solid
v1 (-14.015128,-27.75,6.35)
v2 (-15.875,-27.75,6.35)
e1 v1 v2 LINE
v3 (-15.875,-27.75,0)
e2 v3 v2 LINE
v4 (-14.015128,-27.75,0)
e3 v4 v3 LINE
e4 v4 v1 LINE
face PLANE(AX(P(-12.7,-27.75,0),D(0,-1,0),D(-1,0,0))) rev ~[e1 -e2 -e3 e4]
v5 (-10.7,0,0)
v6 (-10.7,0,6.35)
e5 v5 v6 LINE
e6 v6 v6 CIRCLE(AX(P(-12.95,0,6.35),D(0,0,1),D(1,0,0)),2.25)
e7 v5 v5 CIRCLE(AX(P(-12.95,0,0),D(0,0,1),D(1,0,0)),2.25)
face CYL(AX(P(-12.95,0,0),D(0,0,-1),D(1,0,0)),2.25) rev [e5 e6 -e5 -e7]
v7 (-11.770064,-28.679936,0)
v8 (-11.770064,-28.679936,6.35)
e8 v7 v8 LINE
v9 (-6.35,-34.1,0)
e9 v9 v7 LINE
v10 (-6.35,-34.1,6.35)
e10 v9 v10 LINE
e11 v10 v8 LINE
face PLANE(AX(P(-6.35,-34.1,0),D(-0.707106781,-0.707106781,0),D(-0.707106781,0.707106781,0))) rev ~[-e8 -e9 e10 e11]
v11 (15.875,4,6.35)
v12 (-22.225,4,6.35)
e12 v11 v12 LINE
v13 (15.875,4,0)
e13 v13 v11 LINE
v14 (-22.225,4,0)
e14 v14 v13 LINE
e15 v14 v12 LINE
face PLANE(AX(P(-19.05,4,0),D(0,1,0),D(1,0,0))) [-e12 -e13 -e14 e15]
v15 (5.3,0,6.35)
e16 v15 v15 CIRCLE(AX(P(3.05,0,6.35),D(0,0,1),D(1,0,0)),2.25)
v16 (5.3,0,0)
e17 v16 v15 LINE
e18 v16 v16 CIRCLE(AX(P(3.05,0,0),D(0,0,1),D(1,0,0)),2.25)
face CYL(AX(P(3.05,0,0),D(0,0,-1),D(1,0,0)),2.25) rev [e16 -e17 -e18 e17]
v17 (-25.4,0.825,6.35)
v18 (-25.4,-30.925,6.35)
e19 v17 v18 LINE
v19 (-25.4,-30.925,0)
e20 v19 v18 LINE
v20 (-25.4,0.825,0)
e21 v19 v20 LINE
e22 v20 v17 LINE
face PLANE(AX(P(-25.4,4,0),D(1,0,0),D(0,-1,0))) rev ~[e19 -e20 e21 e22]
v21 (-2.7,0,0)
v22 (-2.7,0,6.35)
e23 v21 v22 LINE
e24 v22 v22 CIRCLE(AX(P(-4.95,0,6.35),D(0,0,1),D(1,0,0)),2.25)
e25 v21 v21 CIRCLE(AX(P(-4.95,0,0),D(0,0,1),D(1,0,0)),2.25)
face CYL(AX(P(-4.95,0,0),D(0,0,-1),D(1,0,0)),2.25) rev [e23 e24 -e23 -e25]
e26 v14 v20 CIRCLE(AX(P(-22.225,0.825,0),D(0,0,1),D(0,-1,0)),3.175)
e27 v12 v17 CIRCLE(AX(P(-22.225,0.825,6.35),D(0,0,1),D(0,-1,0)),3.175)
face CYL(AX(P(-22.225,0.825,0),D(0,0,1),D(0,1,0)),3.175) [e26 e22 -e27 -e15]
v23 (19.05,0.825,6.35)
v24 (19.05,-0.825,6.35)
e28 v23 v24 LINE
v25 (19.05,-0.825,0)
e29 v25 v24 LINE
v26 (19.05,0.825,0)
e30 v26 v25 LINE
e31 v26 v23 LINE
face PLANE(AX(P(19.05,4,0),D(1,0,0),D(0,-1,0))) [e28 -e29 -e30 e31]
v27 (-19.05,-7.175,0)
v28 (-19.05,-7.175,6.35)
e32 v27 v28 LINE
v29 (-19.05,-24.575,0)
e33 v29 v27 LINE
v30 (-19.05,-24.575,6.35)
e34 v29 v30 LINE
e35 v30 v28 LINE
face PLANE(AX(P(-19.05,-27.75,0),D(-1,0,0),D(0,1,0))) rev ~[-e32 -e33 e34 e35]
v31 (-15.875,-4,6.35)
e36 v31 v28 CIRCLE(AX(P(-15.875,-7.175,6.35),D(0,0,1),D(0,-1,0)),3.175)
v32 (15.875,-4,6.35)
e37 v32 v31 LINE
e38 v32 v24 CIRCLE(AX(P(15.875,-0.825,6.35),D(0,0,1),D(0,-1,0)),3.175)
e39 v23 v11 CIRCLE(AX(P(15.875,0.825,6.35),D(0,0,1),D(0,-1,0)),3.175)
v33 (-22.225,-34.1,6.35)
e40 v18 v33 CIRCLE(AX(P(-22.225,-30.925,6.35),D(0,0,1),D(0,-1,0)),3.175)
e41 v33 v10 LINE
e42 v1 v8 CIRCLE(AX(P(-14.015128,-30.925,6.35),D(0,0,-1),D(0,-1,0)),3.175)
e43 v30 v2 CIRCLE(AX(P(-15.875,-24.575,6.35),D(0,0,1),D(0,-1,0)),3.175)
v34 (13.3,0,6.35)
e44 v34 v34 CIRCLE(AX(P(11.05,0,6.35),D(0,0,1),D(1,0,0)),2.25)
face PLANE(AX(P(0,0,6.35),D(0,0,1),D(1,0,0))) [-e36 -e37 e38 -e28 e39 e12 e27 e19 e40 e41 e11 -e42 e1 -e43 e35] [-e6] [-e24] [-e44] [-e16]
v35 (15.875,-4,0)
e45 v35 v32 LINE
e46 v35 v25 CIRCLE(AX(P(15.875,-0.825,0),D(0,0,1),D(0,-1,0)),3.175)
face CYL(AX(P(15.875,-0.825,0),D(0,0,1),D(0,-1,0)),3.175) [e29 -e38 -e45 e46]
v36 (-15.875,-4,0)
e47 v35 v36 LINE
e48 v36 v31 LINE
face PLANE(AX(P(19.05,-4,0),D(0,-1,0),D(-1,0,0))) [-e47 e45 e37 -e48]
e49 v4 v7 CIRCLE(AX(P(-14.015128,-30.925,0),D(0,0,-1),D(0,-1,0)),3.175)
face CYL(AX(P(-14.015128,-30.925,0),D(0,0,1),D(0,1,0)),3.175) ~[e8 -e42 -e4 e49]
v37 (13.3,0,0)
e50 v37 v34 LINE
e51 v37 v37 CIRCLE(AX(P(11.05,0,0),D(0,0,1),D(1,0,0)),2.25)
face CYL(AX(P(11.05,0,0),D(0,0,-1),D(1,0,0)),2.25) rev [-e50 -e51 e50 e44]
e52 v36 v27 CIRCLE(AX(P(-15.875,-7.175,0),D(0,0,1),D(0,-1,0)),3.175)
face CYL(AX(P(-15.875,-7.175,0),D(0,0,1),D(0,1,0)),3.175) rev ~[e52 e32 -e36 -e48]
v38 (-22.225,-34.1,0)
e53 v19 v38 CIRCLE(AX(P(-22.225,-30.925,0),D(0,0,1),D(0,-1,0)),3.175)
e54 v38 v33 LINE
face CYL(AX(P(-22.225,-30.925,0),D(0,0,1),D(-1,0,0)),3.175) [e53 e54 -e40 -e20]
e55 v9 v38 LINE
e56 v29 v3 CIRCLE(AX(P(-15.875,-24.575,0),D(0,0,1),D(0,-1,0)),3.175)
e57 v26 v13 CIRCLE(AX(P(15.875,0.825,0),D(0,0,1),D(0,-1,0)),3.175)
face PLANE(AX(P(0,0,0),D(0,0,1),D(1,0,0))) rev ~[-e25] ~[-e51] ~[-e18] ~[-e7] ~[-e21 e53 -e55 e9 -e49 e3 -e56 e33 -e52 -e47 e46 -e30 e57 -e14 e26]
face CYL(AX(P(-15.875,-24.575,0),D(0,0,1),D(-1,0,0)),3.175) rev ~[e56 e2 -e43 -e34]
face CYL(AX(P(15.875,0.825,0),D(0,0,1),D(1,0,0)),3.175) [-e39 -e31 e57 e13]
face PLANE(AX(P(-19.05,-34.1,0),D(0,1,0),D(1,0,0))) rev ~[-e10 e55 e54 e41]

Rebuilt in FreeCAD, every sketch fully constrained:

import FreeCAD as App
import Part
import Sketcher
Q = App.Units.Quantity


def edges_at(feature, points):
    """Names of the edges that pass closest to the given points."""
    edges = feature.Shape.Edges
    near = lambda p: min(range(len(edges)), key=lambda i: edges[i].distToShape(Part.Vertex(*p))[0])
    return sorted({f"Edge{near(p) + 1}" for p in points})


def add_polygon(sketch, points):
    """Adds a closed chain of lines whose ends are joined by coincident constraints."""
    first, n = sketch.GeometryCount, len(points)
    for a, b in zip(points, points[1:] + points[:1]):
        sketch.addGeometry(Part.LineSegment(App.Vector(*a, 0), App.Vector(*b, 0)), False)
    for i in range(n):
        sketch.addConstraint(Sketcher.Constraint("Coincident", first + i, 2, first + (i + 1) % n, 1))

doc = App.newDocument("Part")
body = doc.addObject("PartDesign::Body", "Body")

# Sketch on XY plane
sketch1 = body.newObject("Sketcher::SketchObject", "Sketch")
sketch1.AttachmentSupport = (doc.getObject("XY_Plane"), [""])
sketch1.MapMode = "FlatFace"
add_polygon(sketch1, [(-19.05, -4), (19.05, -4), (19.05, 4), (-25.4, 4), (-25.4, -34.1), (-6.35, -34.1), (-12.7, -27.75), (-19.05, -27.75)])  # lines 0-7
sketch1.addGeometry(Part.Circle(App.Vector(-12.95, 0, 0), App.Vector(0, 0, 1), 2.25), False)  # 8
sketch1.addGeometry(Part.Circle(App.Vector(-4.95, 0, 0), App.Vector(0, 0, 1), 2.25), False)  # 9
sketch1.addGeometry(Part.Circle(App.Vector(3.05, 0, 0), App.Vector(0, 0, 1), 2.25), False)  # 10
sketch1.addGeometry(Part.Circle(App.Vector(11.05, 0, 0), App.Vector(0, 0, 1), 2.25), False)  # 11
sketch1.addConstraint([
    Sketcher.Constraint("Horizontal", 0),
    Sketcher.Constraint("Vertical", 1),
    Sketcher.Constraint("Horizontal", 2),
    Sketcher.Constraint("Vertical", 3),
    Sketcher.Constraint("Horizontal", 4),
    Sketcher.Constraint("Horizontal", 6),
    Sketcher.Constraint("Vertical", 7),
    Sketcher.Constraint("Equal", 8, 9),
    Sketcher.Constraint("Equal", 9, 10),
    Sketcher.Constraint("Equal", 10, 11),
    Sketcher.Constraint("Symmetric", 1, 2, 7, 2, -1, 1),
    Sketcher.Constraint("PointOnObject", 8, 3, -1),
    Sketcher.Constraint("PointOnObject", 9, 3, -1),
    Sketcher.Constraint("PointOnObject", 10, 3, -1),
    Sketcher.Constraint("PointOnObject", 11, 3, -1),
    Sketcher.Constraint("Equal", 0, 3),
    Sketcher.Constraint("DistanceX", 0, 1, 0, 2, Q("1.5 in")),
    Sketcher.Constraint("DistanceX", 4, 1, 4, 2, Q("0.75 in")),
    Sketcher.Constraint("DistanceX", 6, 2, 6, 1, Q("0.25 in")),
    Sketcher.Constraint("Diameter", 8, Q("4.5 mm")),
    Sketcher.Constraint("DistanceX", 4, 2, -1, 1, Q("0.25 in")),
    Sketcher.Constraint("DistanceY", 4, 2, 5, 2, Q("0.25 in")),
    Sketcher.Constraint("DistanceY", 1, 1, 1, 2, Q("8 mm")),
    Sketcher.Constraint("DistanceX", 8, 3, 9, 3, Q("8 mm")),
    Sketcher.Constraint("DistanceX", 9, 3, 10, 3, Q("8 mm")),
    Sketcher.Constraint("DistanceX", 10, 3, 11, 3, Q("8 mm")),
    Sketcher.Constraint("DistanceX", 11, 3, 0, 2, Q("8 mm")),
])
pad1 = body.newObject("PartDesign::Pad", "Pad")
pad1.Profile = sketch1
pad1.Length = Q("0.25 in")
doc.recompute()

fillet = body.newObject("PartDesign::Fillet", "Fillet")
fillet.Base = (pad1, edges_at(pad1, [
    (-19.05, -27.75, 3.175),
    (-19.05, -4, 3.175),
    (-25.4, 4, 3.175),
    (19.05, 4, 3.175),
    (19.05, -4, 3.175),
]))
fillet.Radius = Q("0.125 in")
doc.recompute()

fillet2 = body.newObject("PartDesign::Fillet", "Fillet001")
fillet2.Base = (fillet, edges_at(fillet, [(-12.7, -27.75, 3.175), (-25.4, -34.1, 3.175)]))
fillet2.Radius = Q("0.125 in")

doc.recompute()
